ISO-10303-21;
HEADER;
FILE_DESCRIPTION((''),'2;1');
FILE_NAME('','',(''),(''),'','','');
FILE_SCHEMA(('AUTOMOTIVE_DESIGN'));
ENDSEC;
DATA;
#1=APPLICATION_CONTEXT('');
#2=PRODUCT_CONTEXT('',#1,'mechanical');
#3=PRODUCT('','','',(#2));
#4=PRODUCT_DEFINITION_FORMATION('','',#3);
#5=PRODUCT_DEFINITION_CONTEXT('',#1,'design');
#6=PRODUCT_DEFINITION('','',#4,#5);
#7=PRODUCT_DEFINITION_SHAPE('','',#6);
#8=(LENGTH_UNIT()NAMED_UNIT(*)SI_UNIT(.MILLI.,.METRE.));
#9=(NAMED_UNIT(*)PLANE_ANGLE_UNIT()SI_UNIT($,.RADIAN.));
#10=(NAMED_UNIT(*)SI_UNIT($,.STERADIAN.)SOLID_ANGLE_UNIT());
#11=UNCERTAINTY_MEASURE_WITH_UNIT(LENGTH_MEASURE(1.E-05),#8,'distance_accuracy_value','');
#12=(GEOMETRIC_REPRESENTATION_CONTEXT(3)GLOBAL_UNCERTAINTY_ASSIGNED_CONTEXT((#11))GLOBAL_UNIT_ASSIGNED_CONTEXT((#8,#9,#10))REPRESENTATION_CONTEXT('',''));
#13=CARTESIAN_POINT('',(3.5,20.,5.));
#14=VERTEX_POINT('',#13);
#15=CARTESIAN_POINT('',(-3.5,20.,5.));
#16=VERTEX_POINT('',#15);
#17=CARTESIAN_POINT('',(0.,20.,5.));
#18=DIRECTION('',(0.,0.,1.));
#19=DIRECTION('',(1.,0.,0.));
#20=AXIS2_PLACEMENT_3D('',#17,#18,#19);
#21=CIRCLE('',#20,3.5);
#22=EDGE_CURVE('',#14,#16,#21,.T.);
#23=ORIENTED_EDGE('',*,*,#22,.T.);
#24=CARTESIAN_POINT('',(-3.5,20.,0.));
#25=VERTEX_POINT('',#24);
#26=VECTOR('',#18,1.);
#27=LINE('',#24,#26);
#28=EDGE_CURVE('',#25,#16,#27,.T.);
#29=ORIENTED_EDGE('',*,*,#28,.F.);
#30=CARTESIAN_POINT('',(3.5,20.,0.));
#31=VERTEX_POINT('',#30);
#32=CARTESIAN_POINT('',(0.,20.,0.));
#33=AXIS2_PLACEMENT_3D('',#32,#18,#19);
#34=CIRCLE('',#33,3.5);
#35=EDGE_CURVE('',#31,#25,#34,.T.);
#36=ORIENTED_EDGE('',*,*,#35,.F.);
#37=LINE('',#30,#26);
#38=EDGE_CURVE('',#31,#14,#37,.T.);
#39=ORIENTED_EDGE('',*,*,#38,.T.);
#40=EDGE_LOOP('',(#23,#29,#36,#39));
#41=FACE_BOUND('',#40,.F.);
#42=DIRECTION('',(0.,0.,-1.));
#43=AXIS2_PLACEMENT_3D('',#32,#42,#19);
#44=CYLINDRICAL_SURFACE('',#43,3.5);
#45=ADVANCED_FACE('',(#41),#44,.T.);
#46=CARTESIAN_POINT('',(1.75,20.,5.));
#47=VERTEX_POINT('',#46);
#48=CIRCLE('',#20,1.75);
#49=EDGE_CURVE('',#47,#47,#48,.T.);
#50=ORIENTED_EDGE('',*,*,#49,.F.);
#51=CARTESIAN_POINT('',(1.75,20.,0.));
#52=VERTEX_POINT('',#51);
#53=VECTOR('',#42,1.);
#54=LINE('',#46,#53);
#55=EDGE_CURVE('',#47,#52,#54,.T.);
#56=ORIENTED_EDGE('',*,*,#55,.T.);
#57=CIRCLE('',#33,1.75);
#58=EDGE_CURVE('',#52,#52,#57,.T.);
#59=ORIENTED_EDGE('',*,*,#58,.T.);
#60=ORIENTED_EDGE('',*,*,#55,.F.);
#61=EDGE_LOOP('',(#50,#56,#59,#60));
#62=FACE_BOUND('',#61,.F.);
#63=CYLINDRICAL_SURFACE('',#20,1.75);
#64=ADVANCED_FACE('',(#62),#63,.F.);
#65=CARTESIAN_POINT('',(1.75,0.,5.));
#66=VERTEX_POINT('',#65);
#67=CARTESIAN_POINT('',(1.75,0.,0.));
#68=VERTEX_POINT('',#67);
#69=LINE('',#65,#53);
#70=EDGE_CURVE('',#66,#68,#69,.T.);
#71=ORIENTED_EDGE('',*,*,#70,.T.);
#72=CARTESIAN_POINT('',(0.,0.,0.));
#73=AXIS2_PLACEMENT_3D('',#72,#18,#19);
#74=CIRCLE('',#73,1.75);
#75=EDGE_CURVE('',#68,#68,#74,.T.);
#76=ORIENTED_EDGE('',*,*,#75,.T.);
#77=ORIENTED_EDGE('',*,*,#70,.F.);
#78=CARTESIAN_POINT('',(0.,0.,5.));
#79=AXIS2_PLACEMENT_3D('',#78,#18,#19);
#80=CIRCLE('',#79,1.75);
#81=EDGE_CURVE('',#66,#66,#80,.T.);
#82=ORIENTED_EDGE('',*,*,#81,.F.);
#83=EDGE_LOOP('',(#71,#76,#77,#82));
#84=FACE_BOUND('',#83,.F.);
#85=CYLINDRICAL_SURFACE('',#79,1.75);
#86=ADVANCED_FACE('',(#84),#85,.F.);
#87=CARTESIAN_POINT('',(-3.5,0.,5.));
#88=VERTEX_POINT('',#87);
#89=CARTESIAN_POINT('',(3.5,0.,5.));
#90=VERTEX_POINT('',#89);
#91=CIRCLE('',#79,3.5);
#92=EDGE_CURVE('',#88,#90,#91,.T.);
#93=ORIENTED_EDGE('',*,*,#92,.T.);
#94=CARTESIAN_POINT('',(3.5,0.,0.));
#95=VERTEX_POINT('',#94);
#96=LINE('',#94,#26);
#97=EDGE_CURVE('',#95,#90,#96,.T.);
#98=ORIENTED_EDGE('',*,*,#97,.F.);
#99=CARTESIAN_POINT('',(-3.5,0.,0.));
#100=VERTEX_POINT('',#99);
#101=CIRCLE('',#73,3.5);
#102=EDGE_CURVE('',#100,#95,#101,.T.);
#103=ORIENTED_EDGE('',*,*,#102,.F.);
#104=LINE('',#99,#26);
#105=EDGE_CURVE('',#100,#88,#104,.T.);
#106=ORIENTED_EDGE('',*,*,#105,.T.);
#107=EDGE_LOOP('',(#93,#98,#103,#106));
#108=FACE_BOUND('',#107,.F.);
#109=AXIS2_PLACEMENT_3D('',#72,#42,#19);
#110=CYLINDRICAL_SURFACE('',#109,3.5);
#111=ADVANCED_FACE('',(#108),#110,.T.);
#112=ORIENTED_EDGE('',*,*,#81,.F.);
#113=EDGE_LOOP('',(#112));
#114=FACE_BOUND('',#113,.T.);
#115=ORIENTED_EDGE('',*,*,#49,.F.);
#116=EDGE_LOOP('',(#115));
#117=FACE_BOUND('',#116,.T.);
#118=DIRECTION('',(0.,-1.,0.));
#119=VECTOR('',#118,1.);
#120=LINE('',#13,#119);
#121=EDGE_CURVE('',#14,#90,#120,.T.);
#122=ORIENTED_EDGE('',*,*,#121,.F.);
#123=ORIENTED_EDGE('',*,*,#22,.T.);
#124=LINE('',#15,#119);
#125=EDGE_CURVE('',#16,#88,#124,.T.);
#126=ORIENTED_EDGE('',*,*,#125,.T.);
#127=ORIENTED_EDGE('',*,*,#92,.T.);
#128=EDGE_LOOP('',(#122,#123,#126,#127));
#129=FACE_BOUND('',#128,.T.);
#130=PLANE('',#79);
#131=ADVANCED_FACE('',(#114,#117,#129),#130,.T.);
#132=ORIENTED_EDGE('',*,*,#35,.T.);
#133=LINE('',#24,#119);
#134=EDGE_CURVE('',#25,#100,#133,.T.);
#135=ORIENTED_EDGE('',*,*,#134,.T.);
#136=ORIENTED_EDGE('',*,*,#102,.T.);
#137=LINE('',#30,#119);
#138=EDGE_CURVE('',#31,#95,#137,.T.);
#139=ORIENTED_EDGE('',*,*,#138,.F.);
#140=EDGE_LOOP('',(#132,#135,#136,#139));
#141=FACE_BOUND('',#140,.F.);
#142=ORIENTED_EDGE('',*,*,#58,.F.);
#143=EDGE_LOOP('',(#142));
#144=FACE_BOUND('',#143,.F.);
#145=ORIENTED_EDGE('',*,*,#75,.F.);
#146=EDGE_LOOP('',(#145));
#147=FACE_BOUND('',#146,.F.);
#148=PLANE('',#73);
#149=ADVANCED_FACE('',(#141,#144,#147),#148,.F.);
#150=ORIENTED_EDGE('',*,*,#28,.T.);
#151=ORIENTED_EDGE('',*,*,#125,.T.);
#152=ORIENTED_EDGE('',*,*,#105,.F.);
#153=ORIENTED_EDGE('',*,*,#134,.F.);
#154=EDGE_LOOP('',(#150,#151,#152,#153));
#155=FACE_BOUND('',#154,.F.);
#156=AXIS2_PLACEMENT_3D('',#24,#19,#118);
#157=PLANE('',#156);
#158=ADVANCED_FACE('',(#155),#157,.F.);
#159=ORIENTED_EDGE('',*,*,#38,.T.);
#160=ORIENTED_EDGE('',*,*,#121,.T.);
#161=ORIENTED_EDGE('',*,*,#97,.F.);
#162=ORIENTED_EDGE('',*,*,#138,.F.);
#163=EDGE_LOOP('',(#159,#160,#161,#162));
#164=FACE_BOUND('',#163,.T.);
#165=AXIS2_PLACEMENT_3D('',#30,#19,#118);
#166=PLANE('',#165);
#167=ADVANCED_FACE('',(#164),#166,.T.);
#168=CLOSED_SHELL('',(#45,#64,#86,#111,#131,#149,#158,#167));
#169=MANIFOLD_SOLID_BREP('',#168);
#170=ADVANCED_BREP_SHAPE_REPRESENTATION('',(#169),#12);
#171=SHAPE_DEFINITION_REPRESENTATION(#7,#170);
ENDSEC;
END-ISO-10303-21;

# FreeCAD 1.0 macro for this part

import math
import FreeCAD as App
import Part
import Sketcher

V = App.Vector

doc = App.newDocument("Part")
body = doc.addObject("PartDesign::Body", "Body")

# Sketch on XY plane
sketch1 = body.newObject("Sketcher::SketchObject", "Sketch")
sketch1.AttachmentSupport = (doc.getObject("XY_Plane"), [""])
sketch1.MapMode = "FlatFace"
sketch1.addGeometry([
    Part.ArcOfCircle(Part.Circle(V(0, 0, 0), V(0, 0, 1), 3.5), math.radians(180), math.radians(360)),
    Part.LineSegment(V(3.5, 0, 0), V(3.5, 20, 0)),
    Part.ArcOfCircle(Part.Circle(V(0, 20, 0), V(0, 0, 1), 3.5), math.radians(0), math.radians(180)),
    Part.LineSegment(V(-3.5, 20, 0), V(-3.5, 0, 0)),
], False)
sketch1.addConstraint([
    Sketcher.Constraint("Tangent", 0, 2, 1, 1),
    Sketcher.Constraint("Tangent", 1, 2, 2, 1),
    Sketcher.Constraint("Tangent", 2, 2, 3, 1),
    Sketcher.Constraint("Tangent", 3, 2, 0, 1),
    Sketcher.Constraint("Vertical", 1),
    Sketcher.Constraint("Vertical", 3),
    Sketcher.Constraint("Coincident", 0, 3, -1, 1),
    Sketcher.Constraint("Radius", 0, 3.5),
    Sketcher.Constraint("DistanceY", 1, 1, 1, 2, 20.0),
])
pad1 = body.newObject("PartDesign::Pad", "Pad")
pad1.Profile = sketch1
pad1.Length = 5

# Sketch on XY plane
sketch2 = body.newObject("Sketcher::SketchObject", "Sketch001")
sketch2.AttachmentSupport = (doc.getObject("XY_Plane"), [""])
sketch2.MapMode = "FlatFace"
sketch2.AttachmentOffset = App.Placement(V(0, 0, 5), App.Rotation())
sketch2.addGeometry([
    Part.Circle(V(0, 20, 0), V(0, 0, 1), 1.8),
    Part.Circle(V(0, 0, 0), V(0, 0, 1), 1.8),
], False)
sketch2.addConstraint([
    Sketcher.Constraint("Coincident", 1, 3, -1, 1),
    Sketcher.Constraint("Equal", 0, 1),
    Sketcher.Constraint("PointOnObject", 0, 3, -2),
    Sketcher.Constraint("Diameter", 0, 3.5),
    Sketcher.Constraint("DistanceY", -1, 1, 0, 3, 20.0),
])
pocket1 = body.newObject("PartDesign::Pocket", "Pocket")
pocket1.Profile = sketch2
pocket1.Length = 5

doc.recompute()
